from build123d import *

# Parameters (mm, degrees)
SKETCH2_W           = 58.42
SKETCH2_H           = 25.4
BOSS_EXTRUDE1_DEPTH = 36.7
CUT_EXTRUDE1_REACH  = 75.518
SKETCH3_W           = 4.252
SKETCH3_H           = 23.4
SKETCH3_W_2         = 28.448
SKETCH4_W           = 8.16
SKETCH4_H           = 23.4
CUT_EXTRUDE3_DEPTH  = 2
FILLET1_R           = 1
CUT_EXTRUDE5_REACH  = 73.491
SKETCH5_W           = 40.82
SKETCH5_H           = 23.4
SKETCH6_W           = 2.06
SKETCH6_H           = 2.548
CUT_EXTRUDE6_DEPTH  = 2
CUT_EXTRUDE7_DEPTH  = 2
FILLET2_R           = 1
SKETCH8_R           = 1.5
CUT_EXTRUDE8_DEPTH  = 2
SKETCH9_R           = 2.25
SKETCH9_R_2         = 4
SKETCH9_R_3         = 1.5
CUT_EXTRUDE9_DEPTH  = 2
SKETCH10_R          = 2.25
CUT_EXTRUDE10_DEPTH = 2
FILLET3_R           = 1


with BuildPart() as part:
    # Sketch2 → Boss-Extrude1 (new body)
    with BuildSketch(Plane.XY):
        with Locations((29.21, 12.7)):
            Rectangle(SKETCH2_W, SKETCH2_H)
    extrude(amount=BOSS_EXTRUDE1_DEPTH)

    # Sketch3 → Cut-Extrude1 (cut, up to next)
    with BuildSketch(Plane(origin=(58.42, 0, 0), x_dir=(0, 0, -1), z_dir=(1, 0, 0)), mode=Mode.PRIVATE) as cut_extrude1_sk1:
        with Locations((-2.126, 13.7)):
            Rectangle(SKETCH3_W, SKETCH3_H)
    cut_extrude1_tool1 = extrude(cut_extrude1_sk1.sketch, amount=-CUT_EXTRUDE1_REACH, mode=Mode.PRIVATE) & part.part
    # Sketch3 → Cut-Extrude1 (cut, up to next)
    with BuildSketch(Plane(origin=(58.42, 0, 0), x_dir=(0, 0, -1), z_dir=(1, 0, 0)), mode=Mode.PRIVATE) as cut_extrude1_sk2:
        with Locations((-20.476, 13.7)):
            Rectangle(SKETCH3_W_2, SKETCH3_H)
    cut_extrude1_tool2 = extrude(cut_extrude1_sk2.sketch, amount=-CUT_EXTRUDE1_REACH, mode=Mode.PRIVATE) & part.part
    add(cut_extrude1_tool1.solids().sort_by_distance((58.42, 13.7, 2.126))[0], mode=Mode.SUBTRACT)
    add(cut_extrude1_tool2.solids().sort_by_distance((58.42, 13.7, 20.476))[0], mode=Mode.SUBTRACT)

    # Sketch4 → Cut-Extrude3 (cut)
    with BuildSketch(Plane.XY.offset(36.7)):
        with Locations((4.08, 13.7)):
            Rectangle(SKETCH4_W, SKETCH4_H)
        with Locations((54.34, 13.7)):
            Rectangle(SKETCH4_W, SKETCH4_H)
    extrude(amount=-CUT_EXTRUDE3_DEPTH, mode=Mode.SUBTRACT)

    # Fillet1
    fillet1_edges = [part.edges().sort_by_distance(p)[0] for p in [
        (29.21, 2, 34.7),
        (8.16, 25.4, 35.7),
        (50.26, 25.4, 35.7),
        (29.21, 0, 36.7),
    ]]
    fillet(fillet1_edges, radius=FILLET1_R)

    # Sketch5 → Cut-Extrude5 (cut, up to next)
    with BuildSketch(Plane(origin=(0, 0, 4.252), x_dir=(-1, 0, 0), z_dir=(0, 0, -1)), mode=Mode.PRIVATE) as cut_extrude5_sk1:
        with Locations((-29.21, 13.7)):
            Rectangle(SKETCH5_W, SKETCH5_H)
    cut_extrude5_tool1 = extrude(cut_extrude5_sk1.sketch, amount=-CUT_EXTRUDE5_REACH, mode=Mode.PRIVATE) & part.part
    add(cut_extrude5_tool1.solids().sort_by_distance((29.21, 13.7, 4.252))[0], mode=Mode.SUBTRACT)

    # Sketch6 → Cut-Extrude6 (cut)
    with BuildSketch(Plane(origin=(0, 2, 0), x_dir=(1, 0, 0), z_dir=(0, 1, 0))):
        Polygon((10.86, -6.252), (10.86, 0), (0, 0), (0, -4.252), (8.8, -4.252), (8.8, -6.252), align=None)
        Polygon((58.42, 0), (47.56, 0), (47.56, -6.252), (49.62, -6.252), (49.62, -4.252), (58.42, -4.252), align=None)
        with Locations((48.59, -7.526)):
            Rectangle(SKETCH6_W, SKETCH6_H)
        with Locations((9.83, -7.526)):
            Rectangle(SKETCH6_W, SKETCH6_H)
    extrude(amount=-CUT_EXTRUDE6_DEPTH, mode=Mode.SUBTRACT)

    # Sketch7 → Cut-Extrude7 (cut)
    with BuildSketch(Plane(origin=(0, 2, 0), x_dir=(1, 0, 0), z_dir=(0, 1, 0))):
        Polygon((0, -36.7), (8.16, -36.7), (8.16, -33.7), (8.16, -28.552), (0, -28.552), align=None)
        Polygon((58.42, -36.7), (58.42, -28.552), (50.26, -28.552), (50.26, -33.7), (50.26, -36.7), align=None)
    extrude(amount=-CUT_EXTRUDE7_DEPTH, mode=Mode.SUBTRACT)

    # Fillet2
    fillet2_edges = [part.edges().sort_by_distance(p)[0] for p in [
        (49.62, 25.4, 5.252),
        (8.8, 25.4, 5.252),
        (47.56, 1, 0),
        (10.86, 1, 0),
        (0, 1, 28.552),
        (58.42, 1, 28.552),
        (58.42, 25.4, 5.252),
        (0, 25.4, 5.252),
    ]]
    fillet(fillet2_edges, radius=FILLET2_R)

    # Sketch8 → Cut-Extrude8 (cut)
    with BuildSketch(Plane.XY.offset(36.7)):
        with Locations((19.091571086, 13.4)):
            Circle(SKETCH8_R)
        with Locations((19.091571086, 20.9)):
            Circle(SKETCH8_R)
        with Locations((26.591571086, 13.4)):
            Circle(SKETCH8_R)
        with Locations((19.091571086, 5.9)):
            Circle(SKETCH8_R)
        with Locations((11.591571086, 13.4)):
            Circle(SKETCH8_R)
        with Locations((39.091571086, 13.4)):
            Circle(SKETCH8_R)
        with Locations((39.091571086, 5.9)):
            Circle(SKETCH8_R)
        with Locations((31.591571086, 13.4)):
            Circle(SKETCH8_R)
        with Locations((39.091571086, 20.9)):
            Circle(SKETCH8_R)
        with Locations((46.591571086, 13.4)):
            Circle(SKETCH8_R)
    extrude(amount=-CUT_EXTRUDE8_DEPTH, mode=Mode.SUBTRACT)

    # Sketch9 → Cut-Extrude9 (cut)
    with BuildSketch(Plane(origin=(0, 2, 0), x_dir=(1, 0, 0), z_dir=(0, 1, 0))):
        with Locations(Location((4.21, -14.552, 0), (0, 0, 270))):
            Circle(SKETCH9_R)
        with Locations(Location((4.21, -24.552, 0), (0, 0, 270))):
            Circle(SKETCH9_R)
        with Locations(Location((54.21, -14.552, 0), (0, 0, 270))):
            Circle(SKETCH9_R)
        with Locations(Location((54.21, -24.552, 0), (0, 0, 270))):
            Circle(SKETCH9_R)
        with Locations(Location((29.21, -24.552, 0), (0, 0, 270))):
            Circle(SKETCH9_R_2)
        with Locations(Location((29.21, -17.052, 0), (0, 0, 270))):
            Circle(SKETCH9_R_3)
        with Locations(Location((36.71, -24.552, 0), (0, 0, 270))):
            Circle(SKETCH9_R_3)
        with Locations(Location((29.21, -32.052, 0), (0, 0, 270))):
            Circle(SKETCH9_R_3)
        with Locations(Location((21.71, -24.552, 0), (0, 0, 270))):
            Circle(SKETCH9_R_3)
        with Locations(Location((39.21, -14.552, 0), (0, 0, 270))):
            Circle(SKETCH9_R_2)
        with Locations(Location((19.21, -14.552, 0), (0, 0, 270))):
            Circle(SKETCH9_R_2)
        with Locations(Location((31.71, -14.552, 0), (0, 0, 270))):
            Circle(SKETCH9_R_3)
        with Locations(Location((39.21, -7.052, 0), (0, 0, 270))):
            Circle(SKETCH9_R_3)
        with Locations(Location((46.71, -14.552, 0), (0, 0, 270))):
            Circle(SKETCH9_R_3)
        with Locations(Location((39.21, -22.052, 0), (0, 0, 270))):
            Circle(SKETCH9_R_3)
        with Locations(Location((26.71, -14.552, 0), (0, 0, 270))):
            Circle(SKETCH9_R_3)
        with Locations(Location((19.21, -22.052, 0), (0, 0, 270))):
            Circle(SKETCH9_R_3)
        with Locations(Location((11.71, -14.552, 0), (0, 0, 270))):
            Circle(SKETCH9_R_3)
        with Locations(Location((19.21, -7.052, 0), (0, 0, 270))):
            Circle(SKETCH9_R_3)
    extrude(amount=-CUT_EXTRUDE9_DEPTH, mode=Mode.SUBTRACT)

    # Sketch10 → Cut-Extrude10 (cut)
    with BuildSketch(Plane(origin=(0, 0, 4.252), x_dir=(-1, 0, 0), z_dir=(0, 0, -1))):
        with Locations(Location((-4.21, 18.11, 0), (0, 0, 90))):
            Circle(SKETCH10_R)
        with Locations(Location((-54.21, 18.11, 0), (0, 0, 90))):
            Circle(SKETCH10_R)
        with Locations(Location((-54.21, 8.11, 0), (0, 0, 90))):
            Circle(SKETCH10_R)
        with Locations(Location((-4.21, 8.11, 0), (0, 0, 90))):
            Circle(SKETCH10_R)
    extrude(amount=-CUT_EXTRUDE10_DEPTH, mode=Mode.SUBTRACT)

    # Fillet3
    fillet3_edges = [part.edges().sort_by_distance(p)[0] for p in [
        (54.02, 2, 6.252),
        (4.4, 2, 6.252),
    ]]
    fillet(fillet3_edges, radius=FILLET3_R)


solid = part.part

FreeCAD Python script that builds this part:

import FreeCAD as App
import Part
import Sketcher


def edges_at(feature, points):
    """Names of the edges that pass closest to the given points."""
    edges = feature.Shape.Edges
    near = lambda p: min(range(len(edges)), key=lambda i: edges[i].distToShape(Part.Vertex(*p))[0])
    return sorted({f"Edge{near(p) + 1}" for p in points})


def add_polygon(sketch, points):
    """Adds a closed chain of lines whose ends are joined by coincident constraints."""
    first, n = sketch.GeometryCount, len(points)
    for a, b in zip(points, points[1:] + points[:1]):
        sketch.addGeometry(Part.LineSegment(App.Vector(*a, 0), App.Vector(*b, 0)), False)
    for i in range(n):
        sketch.addConstraint(Sketcher.Constraint("Coincident", first + i, 2, first + (i + 1) % n, 1))

doc = App.newDocument("Part")
body = doc.addObject("PartDesign::Body", "Body")

sketch1 = body.newObject("Sketcher::SketchObject", "Sketch")
sketch1.AttachmentSupport = (doc.getObject("XY_Plane"), [""])
sketch1.MapMode = "FlatFace"
add_polygon(sketch1, [(0, 25), (0, 0), (58, 0), (58, 25)])
sketch1.addConstraint([
    Sketcher.Constraint("Vertical", 0),
    Sketcher.Constraint("Horizontal", 1),
    Sketcher.Constraint("Vertical", 2),
    Sketcher.Constraint("Horizontal", 3),
    Sketcher.Constraint("Coincident", 0, 2, -1, 1),
    Sketcher.Constraint("DistanceY", 0, 2, 0, 1, 25.4),
    Sketcher.Constraint("DistanceX", 1, 1, 1, 2, 58.42),
])
pad1 = body.newObject("PartDesign::Pad", "Pad")
pad1.Profile = sketch1
pad1.Length = 36.7

sketch2 = body.newObject("Sketcher::SketchObject", "Sketch001")
sketch2.AttachmentSupport = (doc.getObject("YZ_Plane"), [""])
sketch2.MapMode = "FlatFace"
sketch2.AttachmentOffset = App.Placement(App.Vector(0, 0, 58.42), App.Rotation())
add_polygon(sketch2, [(25.4, 4.3), (2, 4.3), (2, 0), (25.4, 0)])
sketch2.addConstraint([
    Sketcher.Constraint("Horizontal", 0),
    Sketcher.Constraint("Vertical", 1),
    Sketcher.Constraint("Horizontal", 2),
    Sketcher.Constraint("Vertical", 3),
    Sketcher.Constraint("PointOnObject", 1, 2, -1),
    Sketcher.Constraint("DistanceX", 0, 2, 0, 1, 23.4),
    Sketcher.Constraint("DistanceX", -1, 1, 0, 2, 2.0),
    Sketcher.Constraint("DistanceY", 1, 2, 1, 1, 4.252),
])
pocket1 = body.newObject("PartDesign::Pocket", "Pocket")
pocket1.Profile = sketch2
pocket1.Type = "UpToFirst"

sketch3 = body.newObject("Sketcher::SketchObject", "Sketch002")
sketch3.AttachmentSupport = (doc.getObject("YZ_Plane"), [""])
sketch3.MapMode = "FlatFace"
sketch3.AttachmentOffset = App.Placement(App.Vector(0, 0, 58.42), App.Rotation())
add_polygon(sketch3, [(25, 35), (2, 35), (2, 6), (25, 6)])
sketch3.addConstraint([
    Sketcher.Constraint("Horizontal", 0),
    Sketcher.Constraint("Vertical", 1),
    Sketcher.Constraint("Horizontal", 2),
    Sketcher.Constraint("Vertical", 3),
    Sketcher.Constraint("DistanceX", 0, 2, 0, 1, 23.4),
    Sketcher.Constraint("DistanceX", -1, 1, 0, 2, 2.0),
    Sketcher.Constraint("DistanceY", -1, 1, 0, 2, 34.7),
    Sketcher.Constraint("DistanceY", 1, 2, 1, 1, 28.448),
])
pocket2 = body.newObject("PartDesign::Pocket", "Pocket001")
pocket2.Profile = sketch3
pocket2.Type = "UpToFirst"

sketch4 = body.newObject("Sketcher::SketchObject", "Sketch003")
sketch4.AttachmentSupport = (doc.getObject("XY_Plane"), [""])
sketch4.MapMode = "FlatFace"
sketch4.AttachmentOffset = App.Placement(App.Vector(0, 0, 36.7), App.Rotation())
add_polygon(sketch4, [(0, 25), (0, 2), (8, 2), (8, 25)])
add_polygon(sketch4, [(50, 25), (50, 2), (58, 2), (58, 25)])
sketch4.addConstraint([
    Sketcher.Constraint("Vertical", 0),
    Sketcher.Constraint("Horizontal", 1),
    Sketcher.Constraint("Vertical", 2),
    Sketcher.Constraint("Horizontal", 3),
    Sketcher.Constraint("Vertical", 4),
    Sketcher.Constraint("Horizontal", 5),
    Sketcher.Constraint("Vertical", 6),
    Sketcher.Constraint("Horizontal", 7),
    Sketcher.Constraint("PointOnObject", 0, 2, -2),
    Sketcher.Constraint("Horizontal", 1, 2, 4, 2),
    Sketcher.Constraint("Horizontal", 3, 2, 6, 2),
    Sketcher.Constraint("Equal", 3, 5),
    Sketcher.Constraint("DistanceY", 0, 2, 0, 1, 23.4),
    Sketcher.Constraint("DistanceY", -1, 1, 0, 2, 2.0),
    Sketcher.Constraint("DistanceX", 1, 1, 1, 2, 8.16),
    Sketcher.Constraint("DistanceX", 1, 2, 4, 2, 42.1),
])
pocket3 = body.newObject("PartDesign::Pocket", "Pocket002")
pocket3.Profile = sketch4
pocket3.Length = 2
doc.recompute()

fillet = body.newObject("PartDesign::Fillet", "Fillet")
fillet.Base = (pocket3, edges_at(pocket3, [
    (29.21, 2, 34.7),
    (8.16, 25.4, 35.7),
    (50.26, 25.4, 35.7),
    (29.21, 0, 36.7),
]))
fillet.Radius = 1

sketch5 = body.newObject("Sketcher::SketchObject", "Sketch004")
sketch5.AttachmentSupport = (doc.getObject("XY_Plane"), [""])
sketch5.MapMode = "FlatFace"
sketch5.AttachmentOffset = App.Placement(App.Vector(0, 0, 4.252), App.Rotation())
add_polygon(sketch5, [(50, 25), (50, 2), (9, 2), (9, 25)])
sketch5.addConstraint([
    Sketcher.Constraint("Vertical", 0),
    Sketcher.Constraint("Horizontal", 1),
    Sketcher.Constraint("Vertical", 2),
    Sketcher.Constraint("Horizontal", 3),
    Sketcher.Constraint("DistanceY", 0, 2, 0, 1, 23.4),
    Sketcher.Constraint("DistanceY", -1, 1, 0, 2, 2.0),
    Sketcher.Constraint("DistanceX", 1, 2, 1, 1, 40.82),
    Sketcher.Constraint("DistanceX", -1, 1, 1, 2, 8.8),
])
pocket4 = body.newObject("PartDesign::Pocket", "Pocket003")
pocket4.Profile = sketch5
pocket4.Type = "UpToFirst"
pocket4.Reversed = True

sketch6 = body.newObject("Sketcher::SketchObject", "Sketch005")
sketch6.AttachmentSupport = (doc.getObject("XZ_Plane"), [""])
sketch6.MapMode = "FlatFace"
sketch6.AttachmentOffset = App.Placement(App.Vector(0, 0, -2), App.Rotation())
add_polygon(sketch6, [(10.9, 0), (0, 0), (0, 4.3), (8.8, 4.3), (8.8, 8.8), (10.9, 8.8)])
add_polygon(sketch6, [(58.4, 0), (47.6, 0), (47.6, 8.8), (49.6, 8.8), (49.6, 4.3), (58.4, 4.3)])
sketch6.addConstraint([
    Sketcher.Constraint("Horizontal", 0),
    Sketcher.Constraint("Vertical", 1),
    Sketcher.Constraint("Horizontal", 2),
    Sketcher.Constraint("Vertical", 3),
    Sketcher.Constraint("Horizontal", 4),
    Sketcher.Constraint("Vertical", 5),
    Sketcher.Constraint("Horizontal", 6),
    Sketcher.Constraint("Vertical", 7),
    Sketcher.Constraint("Horizontal", 8),
    Sketcher.Constraint("Vertical", 9),
    Sketcher.Constraint("Horizontal", 10),
    Sketcher.Constraint("Vertical", 11),
    Sketcher.Constraint("Coincident", 0, 2, -1, 1),
    Sketcher.Constraint("PointOnObject", 6, 2, -1),
    Sketcher.Constraint("Horizontal", 4, 2, 7, 2),
    Sketcher.Constraint("Horizontal", 2, 2, 9, 2),
    Sketcher.Constraint("Equal", 0, 6),
    Sketcher.Constraint("Equal", 4, 8),
    Sketcher.Constraint("Equal", 10, 5),
    Sketcher.Constraint("DistanceX", 2, 1, 2, 2, 8.8),
    Sketcher.Constraint("DistanceX", 0, 2, 0, 1, 10.86),
    Sketcher.Constraint("DistanceX", 5, 2, 6, 2, 36.7),
    Sketcher.Constraint("DistanceY", 1, 1, 1, 2, 4.252),
])
pocket5 = body.newObject("PartDesign::Pocket", "Pocket004")
pocket5.Profile = sketch6
pocket5.Length = 2
pocket5.Reversed = True

sketch7 = body.newObject("Sketcher::SketchObject", "Sketch006")
sketch7.AttachmentSupport = (doc.getObject("XZ_Plane"), [""])
sketch7.MapMode = "FlatFace"
sketch7.AttachmentOffset = App.Placement(App.Vector(0, 0, -2), App.Rotation())
add_polygon(sketch7, [(0, 37), (8, 37), (8, 29), (0, 29)])
add_polygon(sketch7, [(58, 37), (58, 29), (50, 29), (50, 37)])
sketch7.addConstraint([
    Sketcher.Constraint("Horizontal", 0),
    Sketcher.Constraint("Vertical", 1),
    Sketcher.Constraint("Horizontal", 2),
    Sketcher.Constraint("Vertical", 3),
    Sketcher.Constraint("Vertical", 4),
    Sketcher.Constraint("Horizontal", 5),
    Sketcher.Constraint("Vertical", 6),
    Sketcher.Constraint("Horizontal", 7),
    Sketcher.Constraint("PointOnObject", 2, 2, -2),
    Sketcher.Constraint("Horizontal", 2, 2, 4, 2),
    Sketcher.Constraint("Horizontal", 3, 2, 6, 2),
    Sketcher.Constraint("Equal", 2, 5),
    Sketcher.Constraint("DistanceX", 0, 1, 0, 2, 8.16),
    Sketcher.Constraint("DistanceY", -1, 1, 0, 2, 36.7),
    Sketcher.Constraint("DistanceX", 1, 2, 5, 2, 42.1),
    Sketcher.Constraint("DistanceY", 1, 2, 1, 1, 8.148),
])
pocket6 = body.newObject("PartDesign::Pocket", "Pocket005")
pocket6.Profile = sketch7
pocket6.Length = 2
pocket6.Reversed = True
doc.recompute()

fillet2 = body.newObject("PartDesign::Fillet", "Fillet001")
fillet2.Base = (pocket6, edges_at(pocket6, [
    (49.62, 25.4, 5.252),
    (8.8, 25.4, 5.252),
    (47.56, 1, 0),
    (10.86, 1, 0),
    (0, 1, 28.552),
    (58.42, 1, 28.552),
    (58.42, 25.4, 5.252),
    (0, 25.4, 5.252),
]))
fillet2.Radius = 1

sketch8 = body.newObject("Sketcher::SketchObject", "Sketch007")
sketch8.AttachmentSupport = (doc.getObject("XY_Plane"), [""])
sketch8.MapMode = "FlatFace"
sketch8.AttachmentOffset = App.Placement(App.Vector(0, 0, 36.7), App.Rotation())
sketch8.addGeometry([
    Part.Circle(App.Vector(19.1, 13.4, 0), App.Vector(0, 0, 1), 1.5),
    Part.Circle(App.Vector(19.1, 20.9, 0), App.Vector(0, 0, 1), 1.5),
    Part.Circle(App.Vector(26.6, 13.4, 0), App.Vector(0, 0, 1), 1.5),
    Part.Circle(App.Vector(19.1, 5.9, 0), App.Vector(0, 0, 1), 1.5),
    Part.Circle(App.Vector(11.6, 13.4, 0), App.Vector(0, 0, 1), 1.5),
    Part.Circle(App.Vector(39.1, 13.4, 0), App.Vector(0, 0, 1), 1.5),
    Part.Circle(App.Vector(39.1, 5.9, 0), App.Vector(0, 0, 1), 1.5),
    Part.Circle(App.Vector(31.6, 13.4, 0), App.Vector(0, 0, 1), 1.5),
    Part.Circle(App.Vector(39.1, 20.9, 0), App.Vector(0, 0, 1), 1.5),
    Part.Circle(App.Vector(46.6, 13.4, 0), App.Vector(0, 0, 1), 1.5),
], False)
sketch8.addConstraint([
    Sketcher.Constraint("Equal", 0, 1),
    Sketcher.Constraint("Equal", 1, 2),
    Sketcher.Constraint("Equal", 2, 3),
    Sketcher.Constraint("Equal", 3, 4),
    Sketcher.Constraint("Equal", 4, 5),
    Sketcher.Constraint("Equal", 5, 6),
    Sketcher.Constraint("Equal", 6, 7),
    Sketcher.Constraint("Equal", 7, 8),
    Sketcher.Constraint("Equal", 8, 9),
    Sketcher.Constraint("Horizontal", 0, 3, 2, 3),
    Sketcher.Constraint("Horizontal", 2, 3, 4, 3),
    Sketcher.Constraint("Horizontal", 4, 3, 5, 3),
    Sketcher.Constraint("Horizontal", 3, 3, 6, 3),
    Sketcher.Constraint("Horizontal", 5, 3, 7, 3),
    Sketcher.Constraint("Horizontal", 1, 3, 8, 3),
    Sketcher.Constraint("Horizontal", 7, 3, 9, 3),
    Sketcher.Constraint("Vertical", 0, 3, 1, 3),
    Sketcher.Constraint("Vertical", 1, 3, 3, 3),
    Sketcher.Constraint("Vertical", 5, 3, 6, 3),
    Sketcher.Constraint("Vertical", 6, 3, 8, 3),
    Sketcher.Constraint("Diameter", 0, 3.0),
    Sketcher.Constraint("DistanceY", 3, 3, 1, 3, 15.0),
    Sketcher.Constraint("DistanceX", 4, 3, 2, 3, 15.0),
    Sketcher.Constraint("DistanceX", 0, 3, 5, 3, 20.0),
    Sketcher.Constraint("DistanceX", 2, 3, 7, 3, 5.0),
    Sketcher.Constraint("DistanceX", 7, 3, 9, 3, 15.0),
    Sketcher.Constraint("DistanceY", -1, 1, 0, 3, 13.4),
    Sketcher.Constraint("DistanceY", -1, 1, 1, 3, 20.9),
    Sketcher.Constraint("DistanceX", 0, 3, 2, 3, 7.5),
    Sketcher.Constraint("DistanceX", -1, 1, 0, 3, 19.091571),
])
pocket7 = body.newObject("PartDesign::Pocket", "Pocket006")
pocket7.Profile = sketch8
pocket7.Length = 2

sketch9 = body.newObject("Sketcher::SketchObject", "Sketch008")
sketch9.AttachmentSupport = (doc.getObject("XZ_Plane"), [""])
sketch9.MapMode = "FlatFace"
sketch9.AttachmentOffset = App.Placement(App.Vector(0, 0, -2), App.Rotation())
sketch9.addGeometry([
    Part.Circle(App.Vector(4.2, 14.6, 0), App.Vector(0, 0, 1), 2.2),
    Part.Circle(App.Vector(4.2, 24.6, 0), App.Vector(0, 0, 1), 2.2),
    Part.Circle(App.Vector(54.2, 14.6, 0), App.Vector(0, 0, 1), 2.2),
    Part.Circle(App.Vector(54.2, 24.6, 0), App.Vector(0, 0, 1), 2.2),
    Part.Circle(App.Vector(29.2, 24.6, 0), App.Vector(0, 0, 1), 4),
    Part.Circle(App.Vector(29.2, 17.1, 0), App.Vector(0, 0, 1), 1.5),
    Part.Circle(App.Vector(36.7, 24.6, 0), App.Vector(0, 0, 1), 1.5),
    Part.Circle(App.Vector(29.2, 32.1, 0), App.Vector(0, 0, 1), 1.5),
    Part.Circle(App.Vector(21.7, 24.6, 0), App.Vector(0, 0, 1), 1.5),
    Part.Circle(App.Vector(39.2, 14.6, 0), App.Vector(0, 0, 1), 4),
    Part.Circle(App.Vector(19.2, 14.6, 0), App.Vector(0, 0, 1), 4),
    Part.Circle(App.Vector(31.7, 14.6, 0), App.Vector(0, 0, 1), 1.5),
    Part.Circle(App.Vector(39.2, 7.1, 0), App.Vector(0, 0, 1), 1.5),
    Part.Circle(App.Vector(46.7, 14.6, 0), App.Vector(0, 0, 1), 1.5),
    Part.Circle(App.Vector(39.2, 22.1, 0), App.Vector(0, 0, 1), 1.5),
    Part.Circle(App.Vector(26.7, 14.6, 0), App.Vector(0, 0, 1), 1.5),
    Part.Circle(App.Vector(19.2, 22.1, 0), App.Vector(0, 0, 1), 1.5),
    Part.Circle(App.Vector(11.7, 14.6, 0), App.Vector(0, 0, 1), 1.5),
    Part.Circle(App.Vector(19.2, 7.1, 0), App.Vector(0, 0, 1), 1.5),
], False)
sketch9.addConstraint([
    Sketcher.Constraint("Equal", 0, 1),
    Sketcher.Constraint("Equal", 1, 2),
    Sketcher.Constraint("Equal", 2, 3),
    Sketcher.Constraint("Equal", 5, 6),
    Sketcher.Constraint("Equal", 6, 7),
    Sketcher.Constraint("Equal", 7, 8),
    Sketcher.Constraint("Equal", 4, 9),
    Sketcher.Constraint("Equal", 9, 10),
    Sketcher.Constraint("Equal", 8, 11),
    Sketcher.Constraint("Equal", 11, 12),
    Sketcher.Constraint("Equal", 12, 13),
    Sketcher.Constraint("Equal", 13, 14),
    Sketcher.Constraint("Equal", 14, 15),
    Sketcher.Constraint("Equal", 15, 16),
    Sketcher.Constraint("Equal", 16, 17),
    Sketcher.Constraint("Equal", 17, 18),
    Sketcher.Constraint("Horizontal", 0, 3, 2, 3),
    Sketcher.Constraint("Horizontal", 1, 3, 3, 3),
    Sketcher.Constraint("Horizontal", 3, 3, 4, 3),
    Sketcher.Constraint("Horizontal", 4, 3, 6, 3),
    Sketcher.Constraint("Horizontal", 6, 3, 8, 3),
    Sketcher.Constraint("Horizontal", 2, 3, 9, 3),
    Sketcher.Constraint("Horizontal", 9, 3, 10, 3),
    Sketcher.Constraint("Horizontal", 10, 3, 11, 3),
    Sketcher.Constraint("Horizontal", 11, 3, 13, 3),
    Sketcher.Constraint("Horizontal", 13, 3, 15, 3),
    Sketcher.Constraint("Horizontal", 14, 3, 16, 3),
    Sketcher.Constraint("Horizontal", 15, 3, 17, 3),
    Sketcher.Constraint("Horizontal", 12, 3, 18, 3),
    Sketcher.Constraint("Vertical", 0, 3, 1, 3),
    Sketcher.Constraint("Vertical", 2, 3, 3, 3),
    Sketcher.Constraint("Vertical", 4, 3, 5, 3),
    Sketcher.Constraint("Vertical", 5, 3, 7, 3),
    Sketcher.Constraint("Vertical", 9, 3, 12, 3),
    Sketcher.Constraint("Vertical", 12, 3, 14, 3),
    Sketcher.Constraint("Vertical", 10, 3, 16, 3),
    Sketcher.Constraint("Vertical", 16, 3, 18, 3),
    Sketcher.Constraint("Diameter", 4, 8.0),
    Sketcher.Constraint("Diameter", 5, 3.0),
    Sketcher.Constraint("Diameter", 0, 4.5),
    Sketcher.Constraint("DistanceY", 0, 3, 1, 3, 10.0),
    Sketcher.Constraint("DistanceX", 0, 3, 2, 3, 50.0),
    Sketcher.Constraint("DistanceX", 1, 3, 4, 3, 25.0),
    Sketcher.Constraint("DistanceY", 5, 3, 7, 3, 15.0),
    Sketcher.Constraint("DistanceX", 8, 3, 6, 3, 15.0),
    Sketcher.Constraint("DistanceX", 5, 3, 9, 3, 10.0),
    Sketcher.Constraint("DistanceX", 10, 3, 5, 3, 10.0),
    Sketcher.Constraint("DistanceX", 11, 3, 6, 3, 5.0),
    Sketcher.Constraint("DistanceY", 12, 3, 5, 3, 10.0),
    Sketcher.Constraint("DistanceX", 6, 3, 13, 3, 10.0),
    Sketcher.Constraint("DistanceX", 15, 3, 11, 3, 5.0),
    Sketcher.Constraint("DistanceY", 5, 3, 16, 3, 5.0),
    Sketcher.Constraint("DistanceX", 17, 3, 8, 3, 10.0),
    Sketcher.Constraint("DistanceY", 5, 3, 4, 3, 7.5),
    Sketcher.Constraint("DistanceX", 4, 3, 6, 3, 7.5),
    Sketcher.Constraint("DistanceX", -1, 1, 0, 3, 4.21),
    Sketcher.Constraint("DistanceY", -1, 1, 0, 3, 14.552),
])
pocket8 = body.newObject("PartDesign::Pocket", "Pocket007")
pocket8.Profile = sketch9
pocket8.Length = 2
pocket8.Reversed = True

sketch10 = body.newObject("Sketcher::SketchObject", "Sketch009")
sketch10.AttachmentSupport = (doc.getObject("XY_Plane"), [""])
sketch10.MapMode = "FlatFace"
sketch10.AttachmentOffset = App.Placement(App.Vector(0, 0, 4.252), App.Rotation())
sketch10.addGeometry([
    Part.Circle(App.Vector(4.2, 18.1, 0), App.Vector(0, 0, 1), 2.2),
    Part.Circle(App.Vector(54.2, 18.1, 0), App.Vector(0, 0, 1), 2.2),
    Part.Circle(App.Vector(54.2, 8.1, 0), App.Vector(0, 0, 1), 2.2),
    Part.Circle(App.Vector(4.2, 8.1, 0), App.Vector(0, 0, 1), 2.2),
], False)
sketch10.addConstraint([
    Sketcher.Constraint("Equal", 0, 1),
    Sketcher.Constraint("Equal", 1, 2),
    Sketcher.Constraint("Equal", 2, 3),
    Sketcher.Constraint("Horizontal", 0, 3, 1, 3),
    Sketcher.Constraint("Horizontal", 2, 3, 3, 3),
    Sketcher.Constraint("Vertical", 1, 3, 2, 3),
    Sketcher.Constraint("Vertical", 0, 3, 3, 3),
    Sketcher.Constraint("Diameter", 0, 4.5),
    Sketcher.Constraint("DistanceX", 0, 3, 1, 3, 50.0),
    Sketcher.Constraint("DistanceY", 2, 3, 1, 3, 10.0),
    Sketcher.Constraint("DistanceX", -1, 1, 0, 3, 4.21),
    Sketcher.Constraint("DistanceY", -1, 1, 0, 3, 18.11),
])
pocket9 = body.newObject("PartDesign::Pocket", "Pocket008")
pocket9.Profile = sketch10
pocket9.Length = 2
pocket9.Reversed = True
doc.recompute()

fillet3 = body.newObject("PartDesign::Fillet", "Fillet002")
fillet3.Base = (pocket9, edges_at(pocket9, [(54.02, 2, 6.252), (4.4, 2, 6.252)]))
fillet3.Radius = 1

doc.recompute()
